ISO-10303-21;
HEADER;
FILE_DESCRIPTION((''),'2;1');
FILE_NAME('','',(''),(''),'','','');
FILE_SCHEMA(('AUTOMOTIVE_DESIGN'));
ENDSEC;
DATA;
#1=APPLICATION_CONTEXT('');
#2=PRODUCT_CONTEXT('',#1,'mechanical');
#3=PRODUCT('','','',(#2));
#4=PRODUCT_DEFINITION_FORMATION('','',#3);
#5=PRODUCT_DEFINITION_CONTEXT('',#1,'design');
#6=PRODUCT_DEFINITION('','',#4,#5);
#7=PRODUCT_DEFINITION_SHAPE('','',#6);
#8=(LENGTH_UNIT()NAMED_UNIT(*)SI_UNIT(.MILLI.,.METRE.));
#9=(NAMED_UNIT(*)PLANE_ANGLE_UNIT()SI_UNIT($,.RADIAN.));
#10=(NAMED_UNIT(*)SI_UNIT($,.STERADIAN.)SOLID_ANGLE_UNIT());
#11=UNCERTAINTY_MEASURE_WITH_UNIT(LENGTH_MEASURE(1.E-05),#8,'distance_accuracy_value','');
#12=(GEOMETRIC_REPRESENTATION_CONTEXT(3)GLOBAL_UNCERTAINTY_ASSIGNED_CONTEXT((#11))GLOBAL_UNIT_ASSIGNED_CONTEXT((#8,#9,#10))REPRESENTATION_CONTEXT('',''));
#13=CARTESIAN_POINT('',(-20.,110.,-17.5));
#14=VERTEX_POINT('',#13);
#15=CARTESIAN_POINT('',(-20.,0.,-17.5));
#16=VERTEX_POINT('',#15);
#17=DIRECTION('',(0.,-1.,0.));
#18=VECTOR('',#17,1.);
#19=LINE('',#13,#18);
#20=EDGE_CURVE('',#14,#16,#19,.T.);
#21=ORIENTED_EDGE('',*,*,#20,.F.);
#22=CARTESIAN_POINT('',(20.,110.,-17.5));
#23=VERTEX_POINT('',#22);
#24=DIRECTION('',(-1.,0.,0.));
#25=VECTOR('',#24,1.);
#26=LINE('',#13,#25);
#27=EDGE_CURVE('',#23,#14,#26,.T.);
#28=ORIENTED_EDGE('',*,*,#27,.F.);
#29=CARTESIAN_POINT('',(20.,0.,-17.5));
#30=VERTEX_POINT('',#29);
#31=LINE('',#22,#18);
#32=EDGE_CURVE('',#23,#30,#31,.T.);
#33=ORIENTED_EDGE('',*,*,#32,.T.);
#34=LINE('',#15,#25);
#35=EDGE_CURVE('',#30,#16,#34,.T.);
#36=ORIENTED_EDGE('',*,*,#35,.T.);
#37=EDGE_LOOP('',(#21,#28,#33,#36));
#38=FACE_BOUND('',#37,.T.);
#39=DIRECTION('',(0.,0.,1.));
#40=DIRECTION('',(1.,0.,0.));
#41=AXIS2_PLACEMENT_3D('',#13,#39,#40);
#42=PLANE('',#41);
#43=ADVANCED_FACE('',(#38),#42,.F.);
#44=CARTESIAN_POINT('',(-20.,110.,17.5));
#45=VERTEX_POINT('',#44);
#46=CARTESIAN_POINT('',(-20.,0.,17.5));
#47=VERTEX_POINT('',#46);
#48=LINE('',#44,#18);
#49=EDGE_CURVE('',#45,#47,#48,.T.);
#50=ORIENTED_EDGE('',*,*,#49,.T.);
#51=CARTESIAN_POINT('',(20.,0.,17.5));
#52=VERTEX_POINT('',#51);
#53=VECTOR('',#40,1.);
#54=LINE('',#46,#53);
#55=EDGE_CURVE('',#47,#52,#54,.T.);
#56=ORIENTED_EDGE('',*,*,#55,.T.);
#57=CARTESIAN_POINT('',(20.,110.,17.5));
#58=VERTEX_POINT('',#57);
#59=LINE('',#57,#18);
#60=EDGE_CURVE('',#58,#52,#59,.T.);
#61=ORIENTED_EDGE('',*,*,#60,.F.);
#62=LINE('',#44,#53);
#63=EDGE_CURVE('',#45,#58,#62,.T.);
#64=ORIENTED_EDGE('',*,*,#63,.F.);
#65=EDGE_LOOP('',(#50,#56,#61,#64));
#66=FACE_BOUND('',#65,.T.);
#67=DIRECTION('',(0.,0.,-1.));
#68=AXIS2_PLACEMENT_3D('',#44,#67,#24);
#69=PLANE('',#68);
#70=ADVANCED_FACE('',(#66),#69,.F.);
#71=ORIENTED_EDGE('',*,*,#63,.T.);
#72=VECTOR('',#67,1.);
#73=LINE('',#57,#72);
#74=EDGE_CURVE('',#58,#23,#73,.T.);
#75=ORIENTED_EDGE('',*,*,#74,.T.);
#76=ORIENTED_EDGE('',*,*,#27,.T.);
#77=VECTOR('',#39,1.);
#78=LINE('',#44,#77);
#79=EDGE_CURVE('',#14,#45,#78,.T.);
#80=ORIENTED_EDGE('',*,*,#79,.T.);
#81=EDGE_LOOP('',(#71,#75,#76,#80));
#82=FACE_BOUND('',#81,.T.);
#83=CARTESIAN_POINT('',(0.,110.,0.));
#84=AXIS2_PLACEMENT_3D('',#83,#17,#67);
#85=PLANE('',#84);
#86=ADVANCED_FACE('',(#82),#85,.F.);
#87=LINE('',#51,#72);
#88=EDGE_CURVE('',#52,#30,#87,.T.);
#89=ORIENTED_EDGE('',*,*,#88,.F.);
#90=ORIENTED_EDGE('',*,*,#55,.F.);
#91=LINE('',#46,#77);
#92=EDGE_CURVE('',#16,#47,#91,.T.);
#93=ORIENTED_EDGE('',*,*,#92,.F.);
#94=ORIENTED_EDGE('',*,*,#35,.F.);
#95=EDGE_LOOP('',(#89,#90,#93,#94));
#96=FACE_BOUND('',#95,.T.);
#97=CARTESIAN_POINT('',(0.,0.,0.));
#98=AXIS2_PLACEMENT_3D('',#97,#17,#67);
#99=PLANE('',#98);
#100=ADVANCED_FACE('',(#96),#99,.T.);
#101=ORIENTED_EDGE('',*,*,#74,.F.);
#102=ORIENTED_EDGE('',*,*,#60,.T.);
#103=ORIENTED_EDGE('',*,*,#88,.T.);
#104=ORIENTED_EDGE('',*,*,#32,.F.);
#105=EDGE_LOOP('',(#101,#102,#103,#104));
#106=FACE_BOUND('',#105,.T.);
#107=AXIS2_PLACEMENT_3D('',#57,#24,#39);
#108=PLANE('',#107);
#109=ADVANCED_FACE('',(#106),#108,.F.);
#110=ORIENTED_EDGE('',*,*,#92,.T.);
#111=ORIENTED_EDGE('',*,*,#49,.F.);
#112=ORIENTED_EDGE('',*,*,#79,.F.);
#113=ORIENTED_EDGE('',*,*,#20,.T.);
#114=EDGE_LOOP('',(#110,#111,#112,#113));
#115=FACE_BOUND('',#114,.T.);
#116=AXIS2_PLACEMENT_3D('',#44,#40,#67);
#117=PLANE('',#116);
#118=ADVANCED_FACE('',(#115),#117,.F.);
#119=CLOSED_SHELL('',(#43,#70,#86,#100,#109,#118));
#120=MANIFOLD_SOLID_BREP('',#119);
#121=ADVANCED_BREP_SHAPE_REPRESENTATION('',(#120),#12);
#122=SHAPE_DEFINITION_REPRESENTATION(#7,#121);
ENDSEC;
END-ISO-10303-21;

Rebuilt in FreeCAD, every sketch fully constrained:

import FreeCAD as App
import Part
import Sketcher
from FreeCAD import Vector

doc = App.newDocument("Part")
body = doc.addObject("PartDesign::Body", "Body")

# Sketch on XZ plane
sketch1 = body.newObject("Sketcher::SketchObject", "Sketch")
sketch1.AttachmentSupport = (doc.getObject("XZ_Plane"), [""])
sketch1.MapMode = "FlatFace"
sketch1.addGeometry(Part.LineSegment(Vector(-20, -18, 0), Vector(-20, 18, 0)), False)
sketch1.addGeometry(Part.LineSegment(Vector(-20, 18, 0), Vector(20, 18, 0)), False)
sketch1.addGeometry(Part.LineSegment(Vector(20, 18, 0), Vector(20, -18, 0)), False)
sketch1.addGeometry(Part.LineSegment(Vector(20, -18, 0), Vector(-20, -18, 0)), False)
sketch1.addConstraint(Sketcher.Constraint("Coincident", 0, 2, 1, 1))
sketch1.addConstraint(Sketcher.Constraint("Coincident", 1, 2, 2, 1))
sketch1.addConstraint(Sketcher.Constraint("Coincident", 2, 2, 3, 1))
sketch1.addConstraint(Sketcher.Constraint("Coincident", 3, 2, 0, 1))
sketch1.addConstraint(Sketcher.Constraint("Vertical", 0))
sketch1.addConstraint(Sketcher.Constraint("Horizontal", 1))
sketch1.addConstraint(Sketcher.Constraint("Vertical", 2))
sketch1.addConstraint(Sketcher.Constraint("Horizontal", 3))
sketch1.addConstraint(Sketcher.Constraint("Symmetric", 0, 2, 2, 2, -1, 1))
sketch1.addConstraint(Sketcher.Constraint("DistanceX", 1, 1, 1, 2, 40.0))
sketch1.addConstraint(Sketcher.Constraint("DistanceY", 0, 1, 0, 2, 35.0))
pad1 = body.newObject("PartDesign::Pad", "Pad")
pad1.Profile = sketch1
pad1.Length = 110
pad1.Reversed = True

doc.recompute()
